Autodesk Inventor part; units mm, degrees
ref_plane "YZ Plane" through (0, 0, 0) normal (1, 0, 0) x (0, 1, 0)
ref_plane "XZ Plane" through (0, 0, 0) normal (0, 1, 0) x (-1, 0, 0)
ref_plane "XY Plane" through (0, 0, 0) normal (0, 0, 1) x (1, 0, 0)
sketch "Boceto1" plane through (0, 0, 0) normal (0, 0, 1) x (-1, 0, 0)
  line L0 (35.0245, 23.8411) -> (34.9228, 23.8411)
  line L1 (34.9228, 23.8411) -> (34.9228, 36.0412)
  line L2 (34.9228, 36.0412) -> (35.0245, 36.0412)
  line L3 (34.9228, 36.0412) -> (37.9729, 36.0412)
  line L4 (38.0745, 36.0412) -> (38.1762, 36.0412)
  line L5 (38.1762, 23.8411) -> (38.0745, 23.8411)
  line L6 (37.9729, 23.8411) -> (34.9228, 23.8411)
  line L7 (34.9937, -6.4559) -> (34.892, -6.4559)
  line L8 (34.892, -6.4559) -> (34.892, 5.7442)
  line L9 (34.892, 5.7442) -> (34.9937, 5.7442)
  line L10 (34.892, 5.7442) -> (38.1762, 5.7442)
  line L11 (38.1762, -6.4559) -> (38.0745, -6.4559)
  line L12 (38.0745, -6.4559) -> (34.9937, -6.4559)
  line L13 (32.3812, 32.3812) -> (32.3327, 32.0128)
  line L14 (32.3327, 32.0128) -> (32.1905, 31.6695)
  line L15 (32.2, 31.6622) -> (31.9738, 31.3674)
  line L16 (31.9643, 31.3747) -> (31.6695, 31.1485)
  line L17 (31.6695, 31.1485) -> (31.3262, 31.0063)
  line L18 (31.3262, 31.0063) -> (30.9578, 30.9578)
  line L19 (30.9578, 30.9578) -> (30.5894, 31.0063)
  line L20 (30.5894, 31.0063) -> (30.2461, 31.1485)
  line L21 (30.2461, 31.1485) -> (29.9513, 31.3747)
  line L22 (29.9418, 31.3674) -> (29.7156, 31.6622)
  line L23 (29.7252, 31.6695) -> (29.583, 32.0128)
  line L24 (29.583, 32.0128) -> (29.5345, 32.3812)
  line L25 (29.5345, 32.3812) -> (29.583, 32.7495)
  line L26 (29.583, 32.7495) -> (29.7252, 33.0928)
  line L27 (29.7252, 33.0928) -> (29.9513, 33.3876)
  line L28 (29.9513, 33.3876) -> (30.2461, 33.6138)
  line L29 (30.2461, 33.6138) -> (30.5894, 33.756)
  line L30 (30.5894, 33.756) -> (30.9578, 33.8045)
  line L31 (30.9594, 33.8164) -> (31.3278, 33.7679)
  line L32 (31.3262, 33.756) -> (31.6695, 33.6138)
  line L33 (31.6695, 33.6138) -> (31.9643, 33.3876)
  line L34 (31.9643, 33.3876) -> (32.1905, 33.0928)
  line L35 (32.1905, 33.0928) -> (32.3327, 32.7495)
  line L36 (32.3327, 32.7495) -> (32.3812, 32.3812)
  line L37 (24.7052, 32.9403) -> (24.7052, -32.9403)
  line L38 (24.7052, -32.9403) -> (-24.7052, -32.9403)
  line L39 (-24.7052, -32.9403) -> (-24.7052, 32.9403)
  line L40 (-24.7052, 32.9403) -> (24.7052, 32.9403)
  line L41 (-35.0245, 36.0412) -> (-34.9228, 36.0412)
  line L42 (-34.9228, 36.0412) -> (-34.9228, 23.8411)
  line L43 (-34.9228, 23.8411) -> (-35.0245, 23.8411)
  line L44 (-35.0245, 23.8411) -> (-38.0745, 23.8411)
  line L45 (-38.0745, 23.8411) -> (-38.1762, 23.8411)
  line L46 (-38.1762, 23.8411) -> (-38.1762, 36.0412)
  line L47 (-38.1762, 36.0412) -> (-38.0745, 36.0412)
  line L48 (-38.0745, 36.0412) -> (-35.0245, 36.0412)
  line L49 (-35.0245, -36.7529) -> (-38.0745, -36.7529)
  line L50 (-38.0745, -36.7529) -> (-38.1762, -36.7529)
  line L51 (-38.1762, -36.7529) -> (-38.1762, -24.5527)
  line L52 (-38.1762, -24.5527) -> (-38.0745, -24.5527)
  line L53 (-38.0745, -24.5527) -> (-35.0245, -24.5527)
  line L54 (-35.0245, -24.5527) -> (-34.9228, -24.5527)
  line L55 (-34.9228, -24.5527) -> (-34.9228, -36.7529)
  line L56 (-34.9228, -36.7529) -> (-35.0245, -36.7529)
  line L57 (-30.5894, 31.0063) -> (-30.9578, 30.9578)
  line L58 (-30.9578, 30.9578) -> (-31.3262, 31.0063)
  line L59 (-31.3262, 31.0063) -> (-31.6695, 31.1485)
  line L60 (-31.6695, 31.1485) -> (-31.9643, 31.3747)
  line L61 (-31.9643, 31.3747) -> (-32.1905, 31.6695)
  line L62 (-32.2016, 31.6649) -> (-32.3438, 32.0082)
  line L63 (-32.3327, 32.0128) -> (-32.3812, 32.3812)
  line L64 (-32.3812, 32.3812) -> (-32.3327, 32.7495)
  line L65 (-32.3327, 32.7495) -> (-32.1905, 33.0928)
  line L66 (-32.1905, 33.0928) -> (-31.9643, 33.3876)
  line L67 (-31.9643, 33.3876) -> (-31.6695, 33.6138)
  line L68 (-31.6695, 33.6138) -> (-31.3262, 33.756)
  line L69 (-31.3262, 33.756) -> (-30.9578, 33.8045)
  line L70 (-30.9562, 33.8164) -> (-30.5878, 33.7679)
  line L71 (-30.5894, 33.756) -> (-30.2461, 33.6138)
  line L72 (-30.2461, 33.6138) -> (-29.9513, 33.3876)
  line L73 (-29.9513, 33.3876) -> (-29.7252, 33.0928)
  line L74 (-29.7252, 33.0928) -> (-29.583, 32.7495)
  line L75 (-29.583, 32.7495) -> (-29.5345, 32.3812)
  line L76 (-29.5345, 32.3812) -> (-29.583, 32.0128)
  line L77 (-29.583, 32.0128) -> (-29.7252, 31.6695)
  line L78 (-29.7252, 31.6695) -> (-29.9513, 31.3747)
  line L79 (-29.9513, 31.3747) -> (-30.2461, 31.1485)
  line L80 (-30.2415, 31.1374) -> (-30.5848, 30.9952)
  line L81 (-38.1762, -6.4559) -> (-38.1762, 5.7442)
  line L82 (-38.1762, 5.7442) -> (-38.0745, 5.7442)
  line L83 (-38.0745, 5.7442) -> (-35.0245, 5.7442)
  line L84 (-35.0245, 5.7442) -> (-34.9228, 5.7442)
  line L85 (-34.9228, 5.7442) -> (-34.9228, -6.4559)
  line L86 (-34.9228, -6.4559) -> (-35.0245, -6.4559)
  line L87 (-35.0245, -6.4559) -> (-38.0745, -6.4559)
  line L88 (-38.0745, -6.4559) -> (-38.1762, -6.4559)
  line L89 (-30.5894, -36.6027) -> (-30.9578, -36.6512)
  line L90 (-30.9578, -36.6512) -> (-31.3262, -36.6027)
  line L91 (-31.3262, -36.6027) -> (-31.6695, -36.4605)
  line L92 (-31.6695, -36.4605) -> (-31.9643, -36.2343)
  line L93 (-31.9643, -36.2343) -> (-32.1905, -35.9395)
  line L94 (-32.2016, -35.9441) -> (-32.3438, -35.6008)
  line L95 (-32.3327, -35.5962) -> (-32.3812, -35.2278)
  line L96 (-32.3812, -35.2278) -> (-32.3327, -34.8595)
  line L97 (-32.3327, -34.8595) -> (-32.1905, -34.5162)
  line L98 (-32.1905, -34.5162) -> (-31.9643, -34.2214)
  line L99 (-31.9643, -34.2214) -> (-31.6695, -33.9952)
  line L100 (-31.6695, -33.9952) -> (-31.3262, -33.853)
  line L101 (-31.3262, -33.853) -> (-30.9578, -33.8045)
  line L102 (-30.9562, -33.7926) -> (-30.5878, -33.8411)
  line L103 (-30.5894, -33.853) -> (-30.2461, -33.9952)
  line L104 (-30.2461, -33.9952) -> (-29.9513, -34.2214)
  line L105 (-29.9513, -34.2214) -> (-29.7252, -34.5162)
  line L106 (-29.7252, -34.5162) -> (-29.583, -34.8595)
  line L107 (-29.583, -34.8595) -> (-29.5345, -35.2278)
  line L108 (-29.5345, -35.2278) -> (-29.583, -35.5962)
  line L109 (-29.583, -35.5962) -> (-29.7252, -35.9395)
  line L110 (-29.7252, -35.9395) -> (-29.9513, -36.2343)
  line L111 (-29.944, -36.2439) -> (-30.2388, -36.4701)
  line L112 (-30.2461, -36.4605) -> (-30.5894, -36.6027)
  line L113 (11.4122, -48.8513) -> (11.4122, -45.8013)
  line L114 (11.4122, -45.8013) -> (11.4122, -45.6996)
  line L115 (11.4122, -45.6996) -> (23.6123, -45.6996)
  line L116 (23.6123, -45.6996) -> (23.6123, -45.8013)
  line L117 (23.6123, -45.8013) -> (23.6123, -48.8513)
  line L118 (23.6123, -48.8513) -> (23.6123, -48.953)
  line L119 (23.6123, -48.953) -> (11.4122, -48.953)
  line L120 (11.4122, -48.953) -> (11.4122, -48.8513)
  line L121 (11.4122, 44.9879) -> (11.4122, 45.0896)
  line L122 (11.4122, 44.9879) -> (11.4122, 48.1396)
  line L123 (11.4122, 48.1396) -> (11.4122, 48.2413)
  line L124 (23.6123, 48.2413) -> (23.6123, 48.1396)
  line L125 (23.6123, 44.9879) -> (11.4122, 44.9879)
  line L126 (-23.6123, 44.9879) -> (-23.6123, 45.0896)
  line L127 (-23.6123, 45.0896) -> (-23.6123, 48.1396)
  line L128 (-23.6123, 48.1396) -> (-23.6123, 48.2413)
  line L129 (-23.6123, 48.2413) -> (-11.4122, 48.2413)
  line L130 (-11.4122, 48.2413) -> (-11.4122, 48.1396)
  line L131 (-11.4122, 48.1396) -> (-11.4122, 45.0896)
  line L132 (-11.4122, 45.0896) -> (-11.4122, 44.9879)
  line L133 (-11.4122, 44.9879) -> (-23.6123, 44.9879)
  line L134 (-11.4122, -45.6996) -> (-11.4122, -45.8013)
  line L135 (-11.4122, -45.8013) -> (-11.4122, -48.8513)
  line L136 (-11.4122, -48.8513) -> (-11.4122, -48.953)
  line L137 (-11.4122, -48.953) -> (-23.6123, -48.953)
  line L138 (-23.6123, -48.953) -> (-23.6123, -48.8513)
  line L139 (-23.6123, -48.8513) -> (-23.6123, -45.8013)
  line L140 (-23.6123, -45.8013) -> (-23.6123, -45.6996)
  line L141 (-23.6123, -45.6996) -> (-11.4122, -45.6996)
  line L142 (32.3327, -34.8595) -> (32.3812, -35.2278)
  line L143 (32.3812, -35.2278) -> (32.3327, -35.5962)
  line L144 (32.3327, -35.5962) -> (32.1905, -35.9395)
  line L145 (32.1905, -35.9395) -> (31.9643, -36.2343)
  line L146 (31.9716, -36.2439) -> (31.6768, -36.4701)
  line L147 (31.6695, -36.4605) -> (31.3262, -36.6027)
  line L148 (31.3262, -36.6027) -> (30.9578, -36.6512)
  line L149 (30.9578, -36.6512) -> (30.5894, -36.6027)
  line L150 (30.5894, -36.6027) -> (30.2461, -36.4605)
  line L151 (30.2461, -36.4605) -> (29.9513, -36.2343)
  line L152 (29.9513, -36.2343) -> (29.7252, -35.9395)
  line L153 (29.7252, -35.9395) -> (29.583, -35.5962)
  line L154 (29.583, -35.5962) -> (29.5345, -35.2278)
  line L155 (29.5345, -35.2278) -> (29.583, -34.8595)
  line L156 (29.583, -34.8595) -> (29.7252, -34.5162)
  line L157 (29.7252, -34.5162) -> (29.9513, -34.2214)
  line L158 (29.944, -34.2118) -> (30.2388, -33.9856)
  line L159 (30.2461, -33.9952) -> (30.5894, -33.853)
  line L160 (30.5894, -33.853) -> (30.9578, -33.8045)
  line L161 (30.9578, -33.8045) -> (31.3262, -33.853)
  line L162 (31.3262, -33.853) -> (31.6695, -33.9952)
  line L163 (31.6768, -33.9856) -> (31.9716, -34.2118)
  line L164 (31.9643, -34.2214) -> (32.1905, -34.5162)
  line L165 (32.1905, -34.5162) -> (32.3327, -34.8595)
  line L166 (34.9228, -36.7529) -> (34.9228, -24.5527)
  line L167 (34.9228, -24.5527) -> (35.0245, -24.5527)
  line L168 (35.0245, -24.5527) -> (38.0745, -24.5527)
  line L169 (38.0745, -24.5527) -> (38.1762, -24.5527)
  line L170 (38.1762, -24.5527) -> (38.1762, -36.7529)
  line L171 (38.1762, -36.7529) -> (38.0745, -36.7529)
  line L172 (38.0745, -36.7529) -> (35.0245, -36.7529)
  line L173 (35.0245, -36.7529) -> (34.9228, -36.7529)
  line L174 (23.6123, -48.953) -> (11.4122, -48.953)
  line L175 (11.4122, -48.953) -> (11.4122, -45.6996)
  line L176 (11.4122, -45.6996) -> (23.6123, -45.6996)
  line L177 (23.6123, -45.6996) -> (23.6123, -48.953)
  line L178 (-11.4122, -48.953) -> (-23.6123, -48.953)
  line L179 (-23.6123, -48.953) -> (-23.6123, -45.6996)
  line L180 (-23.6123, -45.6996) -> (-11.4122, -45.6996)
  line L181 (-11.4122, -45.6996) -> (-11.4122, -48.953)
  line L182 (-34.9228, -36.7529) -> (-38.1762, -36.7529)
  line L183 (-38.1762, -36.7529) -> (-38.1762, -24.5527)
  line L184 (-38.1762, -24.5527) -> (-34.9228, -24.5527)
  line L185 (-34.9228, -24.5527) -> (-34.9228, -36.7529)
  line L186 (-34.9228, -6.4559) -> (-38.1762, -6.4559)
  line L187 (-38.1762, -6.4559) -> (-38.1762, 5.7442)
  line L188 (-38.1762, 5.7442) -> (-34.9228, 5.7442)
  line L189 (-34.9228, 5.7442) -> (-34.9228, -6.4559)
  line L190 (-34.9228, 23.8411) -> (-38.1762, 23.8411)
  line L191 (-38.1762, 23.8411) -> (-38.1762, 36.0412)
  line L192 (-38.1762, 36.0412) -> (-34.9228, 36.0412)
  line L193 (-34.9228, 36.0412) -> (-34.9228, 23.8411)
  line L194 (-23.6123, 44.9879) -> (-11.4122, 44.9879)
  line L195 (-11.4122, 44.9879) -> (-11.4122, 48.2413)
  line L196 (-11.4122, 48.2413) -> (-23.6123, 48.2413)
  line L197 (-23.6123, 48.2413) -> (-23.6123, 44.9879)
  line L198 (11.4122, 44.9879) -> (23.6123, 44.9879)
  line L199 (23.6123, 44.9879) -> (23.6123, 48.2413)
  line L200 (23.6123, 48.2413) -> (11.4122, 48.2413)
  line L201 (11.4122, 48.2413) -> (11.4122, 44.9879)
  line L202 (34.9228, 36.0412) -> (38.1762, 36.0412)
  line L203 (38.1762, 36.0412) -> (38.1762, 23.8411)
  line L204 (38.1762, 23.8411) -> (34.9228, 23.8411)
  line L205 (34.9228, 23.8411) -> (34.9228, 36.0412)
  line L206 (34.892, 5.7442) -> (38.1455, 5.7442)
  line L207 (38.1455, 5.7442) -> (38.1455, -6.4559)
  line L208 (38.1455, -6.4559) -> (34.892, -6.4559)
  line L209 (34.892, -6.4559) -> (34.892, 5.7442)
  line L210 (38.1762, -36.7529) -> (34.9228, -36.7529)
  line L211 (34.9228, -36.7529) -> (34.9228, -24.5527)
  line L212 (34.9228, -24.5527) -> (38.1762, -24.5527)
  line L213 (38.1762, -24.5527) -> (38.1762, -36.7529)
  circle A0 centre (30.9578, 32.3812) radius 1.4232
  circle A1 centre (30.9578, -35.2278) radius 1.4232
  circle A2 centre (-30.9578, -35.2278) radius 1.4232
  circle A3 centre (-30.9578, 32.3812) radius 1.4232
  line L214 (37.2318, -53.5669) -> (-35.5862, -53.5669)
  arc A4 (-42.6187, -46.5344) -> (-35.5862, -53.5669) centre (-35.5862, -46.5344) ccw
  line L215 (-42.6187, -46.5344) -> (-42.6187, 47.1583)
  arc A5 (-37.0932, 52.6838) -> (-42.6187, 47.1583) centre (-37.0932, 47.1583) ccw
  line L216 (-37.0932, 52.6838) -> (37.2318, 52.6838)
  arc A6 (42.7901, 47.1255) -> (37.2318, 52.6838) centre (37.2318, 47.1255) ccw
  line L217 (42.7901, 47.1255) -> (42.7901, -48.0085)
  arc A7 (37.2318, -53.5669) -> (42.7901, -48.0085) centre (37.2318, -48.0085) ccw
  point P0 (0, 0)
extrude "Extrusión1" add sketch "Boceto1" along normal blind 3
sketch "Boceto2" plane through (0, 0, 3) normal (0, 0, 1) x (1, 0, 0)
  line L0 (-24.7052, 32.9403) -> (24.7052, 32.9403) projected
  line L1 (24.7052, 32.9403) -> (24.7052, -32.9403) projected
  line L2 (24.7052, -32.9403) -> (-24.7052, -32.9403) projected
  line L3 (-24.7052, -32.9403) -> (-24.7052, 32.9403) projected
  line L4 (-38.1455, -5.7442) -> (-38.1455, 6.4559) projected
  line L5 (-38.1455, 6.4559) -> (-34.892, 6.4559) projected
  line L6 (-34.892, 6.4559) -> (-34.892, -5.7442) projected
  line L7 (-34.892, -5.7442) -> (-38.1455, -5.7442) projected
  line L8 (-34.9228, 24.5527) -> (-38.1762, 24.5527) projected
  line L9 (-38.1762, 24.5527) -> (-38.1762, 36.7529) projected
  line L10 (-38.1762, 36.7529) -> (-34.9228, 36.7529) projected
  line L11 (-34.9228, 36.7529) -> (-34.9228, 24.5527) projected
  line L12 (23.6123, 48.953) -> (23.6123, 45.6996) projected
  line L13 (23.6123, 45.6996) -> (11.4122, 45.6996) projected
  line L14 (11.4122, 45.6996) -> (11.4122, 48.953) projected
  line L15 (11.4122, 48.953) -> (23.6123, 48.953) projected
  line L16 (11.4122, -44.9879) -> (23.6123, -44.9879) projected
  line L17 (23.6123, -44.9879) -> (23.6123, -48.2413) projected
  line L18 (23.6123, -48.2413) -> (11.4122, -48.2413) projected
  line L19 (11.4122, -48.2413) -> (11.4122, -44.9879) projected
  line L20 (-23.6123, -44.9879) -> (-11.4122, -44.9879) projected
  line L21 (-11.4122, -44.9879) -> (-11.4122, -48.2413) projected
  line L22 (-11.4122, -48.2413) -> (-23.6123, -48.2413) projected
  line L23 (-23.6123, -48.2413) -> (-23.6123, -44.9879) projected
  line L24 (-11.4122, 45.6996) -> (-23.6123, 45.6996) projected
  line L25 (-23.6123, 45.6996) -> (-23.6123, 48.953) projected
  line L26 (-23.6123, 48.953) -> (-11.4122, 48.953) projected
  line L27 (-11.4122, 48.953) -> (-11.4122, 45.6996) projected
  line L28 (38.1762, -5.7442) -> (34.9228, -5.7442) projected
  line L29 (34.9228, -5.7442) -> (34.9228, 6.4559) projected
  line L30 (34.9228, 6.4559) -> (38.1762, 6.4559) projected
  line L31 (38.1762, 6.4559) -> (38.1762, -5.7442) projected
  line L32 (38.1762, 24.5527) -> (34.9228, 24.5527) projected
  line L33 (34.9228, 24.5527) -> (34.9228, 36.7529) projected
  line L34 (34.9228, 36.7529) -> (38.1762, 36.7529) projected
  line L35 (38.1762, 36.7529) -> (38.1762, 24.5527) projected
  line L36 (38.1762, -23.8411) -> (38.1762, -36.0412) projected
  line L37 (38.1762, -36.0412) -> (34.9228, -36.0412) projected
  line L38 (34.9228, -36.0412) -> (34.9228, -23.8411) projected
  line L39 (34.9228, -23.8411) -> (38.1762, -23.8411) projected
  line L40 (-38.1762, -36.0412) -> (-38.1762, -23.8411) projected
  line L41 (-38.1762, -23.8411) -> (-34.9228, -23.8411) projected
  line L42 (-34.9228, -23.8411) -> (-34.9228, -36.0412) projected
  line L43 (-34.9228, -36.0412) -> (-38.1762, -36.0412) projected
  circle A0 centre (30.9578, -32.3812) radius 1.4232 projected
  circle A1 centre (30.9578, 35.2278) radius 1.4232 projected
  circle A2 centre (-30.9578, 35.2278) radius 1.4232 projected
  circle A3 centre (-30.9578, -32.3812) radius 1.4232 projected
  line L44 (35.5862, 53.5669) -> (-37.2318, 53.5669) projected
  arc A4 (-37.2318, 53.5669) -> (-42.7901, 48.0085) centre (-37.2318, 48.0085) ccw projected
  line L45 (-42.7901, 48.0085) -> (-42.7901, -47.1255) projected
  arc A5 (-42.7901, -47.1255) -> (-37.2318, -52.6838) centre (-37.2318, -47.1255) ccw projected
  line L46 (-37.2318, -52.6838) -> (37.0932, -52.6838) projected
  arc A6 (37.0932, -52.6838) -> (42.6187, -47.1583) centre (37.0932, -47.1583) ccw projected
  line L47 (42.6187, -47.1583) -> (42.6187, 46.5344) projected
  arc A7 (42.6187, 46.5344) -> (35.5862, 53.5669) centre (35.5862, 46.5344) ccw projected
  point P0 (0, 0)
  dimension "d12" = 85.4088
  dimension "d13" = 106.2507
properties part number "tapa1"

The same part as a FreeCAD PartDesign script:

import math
import FreeCAD as App
import Part
import Sketcher
from FreeCAD import Vector

doc = App.newDocument("Part")
body = doc.addObject("PartDesign::Body", "Body")

# Sketch on XY plane
sketch1 = body.newObject("Sketcher::SketchObject", "Sketch")
sketch1.AttachmentSupport = (doc.getObject("XY_Plane"), [""])
sketch1.MapMode = "FlatFace"
sketch1.addGeometry([
    Part.LineSegment(Vector(35.6, 53.6, 0), Vector(-37.2, 53.6, 0)),  # 0
    Part.ArcOfCircle(Part.Circle(Vector(-37.2, 48, 0), Vector(0, 0, 1), 5.6), math.radians(90), math.radians(180)),  # 1
    Part.LineSegment(Vector(-42.8, 48, 0), Vector(-42.8, -47.1, 0)),  # 2
    Part.ArcOfCircle(Part.Circle(Vector(-37.2, -47.1, 0), Vector(0, 0, 1), 5.6), math.radians(180), math.radians(270)),  # 3
    Part.LineSegment(Vector(-37.2, -52.7, 0), Vector(37.1, -52.7, 0)),  # 4
    Part.ArcOfCircle(Part.Circle(Vector(37.1, -47.2, 0), Vector(0, 0, 1), 5.5), math.radians(-90), math.radians(0)),  # 5
    Part.LineSegment(Vector(42.6, -47.2, 0), Vector(42.6, 46.5, 0)),  # 6
    Part.ArcOfCircle(Part.Circle(Vector(35.6, 46.5, 0), Vector(0, 0, 1), 7), math.radians(0), math.radians(90)),  # 7
    Part.LineSegment(Vector(34.9, 36.8, 0), Vector(38.2, 36.8, 0)),  # 8
    Part.LineSegment(Vector(38.2, 36.8, 0), Vector(38.2, 24.6, 0)),  # 9
    Part.LineSegment(Vector(38.2, 24.6, 0), Vector(34.9, 24.6, 0)),  # 10
    Part.LineSegment(Vector(34.9, 24.6, 0), Vector(34.9, 36.8, 0)),  # 11
    Part.Circle(Vector(31, 35.2, 0), Vector(0, 0, 1), 1.4),  # 12
    Part.LineSegment(Vector(23.6, 45.7, 0), Vector(11.4, 45.7, 0)),  # 13
    Part.LineSegment(Vector(11.4, 45.7, 0), Vector(11.4, 49, 0)),  # 14
    Part.LineSegment(Vector(11.4, 49, 0), Vector(23.6, 49, 0)),  # 15
    Part.LineSegment(Vector(23.6, 49, 0), Vector(23.6, 45.7, 0)),  # 16
    Part.LineSegment(Vector(-11.4, 49, 0), Vector(-11.4, 45.7, 0)),  # 17
    Part.LineSegment(Vector(-11.4, 45.7, 0), Vector(-23.6, 45.7, 0)),  # 18
    Part.LineSegment(Vector(-23.6, 45.7, 0), Vector(-23.6, 49, 0)),  # 19
    Part.LineSegment(Vector(-23.6, 49, 0), Vector(-11.4, 49, 0)),  # 20
    Part.Circle(Vector(-31, 35.2, 0), Vector(0, 0, 1), 1.4),  # 21
    Part.LineSegment(Vector(-38.2, 36.8, 0), Vector(-34.9, 36.8, 0)),  # 22
    Part.LineSegment(Vector(-34.9, 36.8, 0), Vector(-34.9, 24.6, 0)),  # 23
    Part.LineSegment(Vector(-34.9, 24.6, 0), Vector(-38.2, 24.6, 0)),  # 24
    Part.LineSegment(Vector(-38.2, 24.6, 0), Vector(-38.2, 36.8, 0)),  # 25
    Part.LineSegment(Vector(34.9, 6.5, 0), Vector(38.2, 6.5, 0)),  # 26
    Part.LineSegment(Vector(38.2, 6.5, 0), Vector(38.2, -5.7, 0)),  # 27
    Part.LineSegment(Vector(38.2, -5.7, 0), Vector(34.9, -5.7, 0)),  # 28
    Part.LineSegment(Vector(34.9, -5.7, 0), Vector(34.9, 6.5, 0)),  # 29
    Part.LineSegment(Vector(24.7, -32.9, 0), Vector(-24.7, -32.9, 0)),  # 30
    Part.LineSegment(Vector(-24.7, -32.9, 0), Vector(-24.7, 32.9, 0)),  # 31
    Part.LineSegment(Vector(-24.7, 32.9, 0), Vector(24.7, 32.9, 0)),  # 32
    Part.LineSegment(Vector(24.7, 32.9, 0), Vector(24.7, -32.9, 0)),  # 33
    Part.LineSegment(Vector(38.2, -36, 0), Vector(34.9, -36, 0)),  # 34
    Part.LineSegment(Vector(34.9, -36, 0), Vector(34.9, -23.8, 0)),  # 35
    Part.LineSegment(Vector(34.9, -23.8, 0), Vector(38.2, -23.8, 0)),  # 36
    Part.LineSegment(Vector(38.2, -23.8, 0), Vector(38.2, -36, 0)),  # 37
    Part.Circle(Vector(31, -32.4, 0), Vector(0, 0, 1), 1.4),  # 38
    Part.LineSegment(Vector(11.4, -45, 0), Vector(23.6, -45, 0)),  # 39
    Part.LineSegment(Vector(23.6, -45, 0), Vector(23.6, -48.2, 0)),  # 40
    Part.LineSegment(Vector(23.6, -48.2, 0), Vector(11.4, -48.2, 0)),  # 41
    Part.LineSegment(Vector(11.4, -48.2, 0), Vector(11.4, -45, 0)),  # 42
    Part.LineSegment(Vector(-38.1, 6.5, 0), Vector(-34.9, 6.5, 0)),  # 43
    Part.LineSegment(Vector(-34.9, 6.5, 0), Vector(-34.9, -5.7, 0)),  # 44
    Part.LineSegment(Vector(-34.9, -5.7, 0), Vector(-38.1, -5.7, 0)),  # 45
    Part.LineSegment(Vector(-38.1, -5.7, 0), Vector(-38.1, 6.5, 0)),  # 46
    Part.LineSegment(Vector(-23.6, -45, 0), Vector(-11.4, -45, 0)),  # 47
    Part.LineSegment(Vector(-11.4, -45, 0), Vector(-11.4, -48.2, 0)),  # 48
    Part.LineSegment(Vector(-11.4, -48.2, 0), Vector(-23.6, -48.2, 0)),  # 49
    Part.LineSegment(Vector(-23.6, -48.2, 0), Vector(-23.6, -45, 0)),  # 50
    Part.Circle(Vector(-31, -32.4, 0), Vector(0, 0, 1), 1.4),  # 51
    Part.LineSegment(Vector(-38.2, -23.8, 0), Vector(-34.9, -23.8, 0)),  # 52
    Part.LineSegment(Vector(-34.9, -23.8, 0), Vector(-34.9, -36, 0)),  # 53
    Part.LineSegment(Vector(-34.9, -36, 0), Vector(-38.2, -36, 0)),  # 54
    Part.LineSegment(Vector(-38.2, -36, 0), Vector(-38.2, -23.8, 0)),  # 55
], False)
sketch1.addConstraint([
    Sketcher.Constraint("Tangent", 0, 2, 1, 1),
    Sketcher.Constraint("Tangent", 1, 2, 2, 1),
    Sketcher.Constraint("Tangent", 2, 2, 3, 1),
    Sketcher.Constraint("Tangent", 3, 2, 4, 1),
    Sketcher.Constraint("Tangent", 4, 2, 5, 1),
    Sketcher.Constraint("Tangent", 5, 2, 6, 1),
    Sketcher.Constraint("Tangent", 6, 2, 7, 1),
    Sketcher.Constraint("Tangent", 7, 2, 0, 1),
    Sketcher.Constraint("Coincident", 8, 2, 9, 1),
    Sketcher.Constraint("Coincident", 9, 2, 10, 1),
    Sketcher.Constraint("Coincident", 10, 2, 11, 1),
    Sketcher.Constraint("Coincident", 11, 2, 8, 1),
    Sketcher.Constraint("Coincident", 13, 2, 14, 1),
    Sketcher.Constraint("Coincident", 14, 2, 15, 1),
    Sketcher.Constraint("Coincident", 15, 2, 16, 1),
    Sketcher.Constraint("Coincident", 16, 2, 13, 1),
    Sketcher.Constraint("Coincident", 17, 2, 18, 1),
    Sketcher.Constraint("Coincident", 18, 2, 19, 1),
    Sketcher.Constraint("Coincident", 19, 2, 20, 1),
    Sketcher.Constraint("Coincident", 20, 2, 17, 1),
    Sketcher.Constraint("Coincident", 22, 2, 23, 1),
    Sketcher.Constraint("Coincident", 23, 2, 24, 1),
    Sketcher.Constraint("Coincident", 24, 2, 25, 1),
    Sketcher.Constraint("Coincident", 25, 2, 22, 1),
    Sketcher.Constraint("Coincident", 26, 2, 27, 1),
    Sketcher.Constraint("Coincident", 27, 2, 28, 1),
    Sketcher.Constraint("Coincident", 28, 2, 29, 1),
    Sketcher.Constraint("Coincident", 29, 2, 26, 1),
    Sketcher.Constraint("Coincident", 30, 2, 31, 1),
    Sketcher.Constraint("Coincident", 31, 2, 32, 1),
    Sketcher.Constraint("Coincident", 32, 2, 33, 1),
    Sketcher.Constraint("Coincident", 33, 2, 30, 1),
    Sketcher.Constraint("Coincident", 34, 2, 35, 1),
    Sketcher.Constraint("Coincident", 35, 2, 36, 1),
    Sketcher.Constraint("Coincident", 36, 2, 37, 1),
    Sketcher.Constraint("Coincident", 37, 2, 34, 1),
    Sketcher.Constraint("Coincident", 39, 2, 40, 1),
    Sketcher.Constraint("Coincident", 40, 2, 41, 1),
    Sketcher.Constraint("Coincident", 41, 2, 42, 1),
    Sketcher.Constraint("Coincident", 42, 2, 39, 1),
    Sketcher.Constraint("Coincident", 43, 2, 44, 1),
    Sketcher.Constraint("Coincident", 44, 2, 45, 1),
    Sketcher.Constraint("Coincident", 45, 2, 46, 1),
    Sketcher.Constraint("Coincident", 46, 2, 43, 1),
    Sketcher.Constraint("Coincident", 47, 2, 48, 1),
    Sketcher.Constraint("Coincident", 48, 2, 49, 1),
    Sketcher.Constraint("Coincident", 49, 2, 50, 1),
    Sketcher.Constraint("Coincident", 50, 2, 47, 1),
    Sketcher.Constraint("Coincident", 52, 2, 53, 1),
    Sketcher.Constraint("Coincident", 53, 2, 54, 1),
    Sketcher.Constraint("Coincident", 54, 2, 55, 1),
    Sketcher.Constraint("Coincident", 55, 2, 52, 1),
    Sketcher.Constraint("Horizontal", 0),
    Sketcher.Constraint("Vertical", 2),
    Sketcher.Constraint("Horizontal", 4),
    Sketcher.Constraint("Vertical", 6),
    Sketcher.Constraint("Horizontal", 8),
    Sketcher.Constraint("Vertical", 9),
    Sketcher.Constraint("Horizontal", 10),
    Sketcher.Constraint("Vertical", 11),
    Sketcher.Constraint("Horizontal", 13),
    Sketcher.Constraint("Vertical", 14),
    Sketcher.Constraint("Horizontal", 15),
    Sketcher.Constraint("Vertical", 16),
    Sketcher.Constraint("Vertical", 17),
    Sketcher.Constraint("Horizontal", 18),
    Sketcher.Constraint("Vertical", 19),
    Sketcher.Constraint("Horizontal", 20),
    Sketcher.Constraint("Horizontal", 22),
    Sketcher.Constraint("Vertical", 23),
    Sketcher.Constraint("Horizontal", 24),
    Sketcher.Constraint("Vertical", 25),
    Sketcher.Constraint("Horizontal", 26),
    Sketcher.Constraint("Vertical", 27),
    Sketcher.Constraint("Horizontal", 28),
    Sketcher.Constraint("Vertical", 29),
    Sketcher.Constraint("Horizontal", 30),
    Sketcher.Constraint("Vertical", 31),
    Sketcher.Constraint("Horizontal", 32),
    Sketcher.Constraint("Vertical", 33),
    Sketcher.Constraint("Horizontal", 34),
    Sketcher.Constraint("Vertical", 35),
    Sketcher.Constraint("Horizontal", 36),
    Sketcher.Constraint("Vertical", 37),
    Sketcher.Constraint("Horizontal", 39),
    Sketcher.Constraint("Vertical", 40),
    Sketcher.Constraint("Horizontal", 41),
    Sketcher.Constraint("Vertical", 42),
    Sketcher.Constraint("Horizontal", 43),
    Sketcher.Constraint("Vertical", 44),
    Sketcher.Constraint("Horizontal", 45),
    Sketcher.Constraint("Vertical", 46),
    Sketcher.Constraint("Horizontal", 47),
    Sketcher.Constraint("Vertical", 48),
    Sketcher.Constraint("Horizontal", 49),
    Sketcher.Constraint("Vertical", 50),
    Sketcher.Constraint("Horizontal", 52),
    Sketcher.Constraint("Vertical", 53),
    Sketcher.Constraint("Horizontal", 54),
    Sketcher.Constraint("Vertical", 55),
    Sketcher.Constraint("Equal", 1, 3),
    Sketcher.Constraint("Equal", 12, 21),
    Sketcher.Constraint("Equal", 21, 38),
    Sketcher.Constraint("Equal", 38, 51),
    Sketcher.Constraint("Symmetric", 30, 2, 32, 2, -1, 1),
    Sketcher.Constraint("Symmetric", 12, 3, 21, 3, -2),
    Sketcher.Constraint("Symmetric", 38, 3, 51, 3, -2),
    Sketcher.Constraint("Symmetric", 13, 2, 17, 2, -2),
    Sketcher.Constraint("Symmetric", 15, 2, 19, 2, -2),
    Sketcher.Constraint("Symmetric", 11, 2, 22, 2, -2),
    Sketcher.Constraint("Symmetric", 9, 2, 24, 2, -2),
    Sketcher.Constraint("Symmetric", 42, 2, 47, 2, -2),
    Sketcher.Constraint("Symmetric", 40, 2, 49, 2, -2),
    Sketcher.Constraint("Symmetric", 35, 2, 52, 2, -2),
    Sketcher.Constraint("Symmetric", 37, 2, 54, 2, -2),
    Sketcher.Constraint("Horizontal", 29, 2, 43, 2),
    Sketcher.Constraint("Horizontal", 28, 2, 44, 2),
    Sketcher.Constraint("Vertical", 12, 3, 38, 3),
    Sketcher.Constraint("Vertical", 9, 2, 26, 2),
    Sketcher.Constraint("Vertical", 11, 2, 28, 2),
    Sketcher.Constraint("Vertical", 29, 2, 34, 2),
    Sketcher.Constraint("Vertical", 27, 2, 36, 2),
    Sketcher.Constraint("Vertical", 16, 2, 39, 2),
    Sketcher.Constraint("Vertical", 14, 2, 41, 2),
    Sketcher.Constraint("Equal", 36, 43),
    Sketcher.Constraint("Equal", 49, 9),
    Sketcher.Constraint("Equal", 54, 14),
    Sketcher.Constraint("Equal", 25, 27),
    Sketcher.Constraint("Equal", 29, 35),
    Sketcher.Constraint("Equal", 19, 40),
    Sketcher.Constraint("DistanceX", 13, 2, 13, 1, 12.2),
    Sketcher.Constraint("Diameter", 12, 2.8464),
    Sketcher.Constraint("Radius", 1, 5.5584),
    Sketcher.Constraint("Radius", 5, 5.5255),
    Sketcher.Constraint("Radius", 7, 7.0325),
    Sketcher.Constraint("DistanceY", 11, 2, 14, 2, 12.2),
    Sketcher.Constraint("DistanceY", 40, 2, 34, 2, 12.2),
    Sketcher.Constraint("DistanceX", 0, 2, 0, 1, 72.818),
    Sketcher.Constraint("DistanceY", 2, 2, 2, 1, 95.134),
    Sketcher.Constraint("DistanceX", 2, 2, -1, 1, 42.79),
    Sketcher.Constraint("DistanceX", 7, 3, 8, 2, 2.59),
    Sketcher.Constraint("DistanceY", 34, 2, 38, 3, 3.66),
    Sketcher.Constraint("DistanceX", 8, 1, 8, 2, 3.2534),
    Sketcher.Constraint("DistanceX", 30, 2, 30, 1, 49.4104),
    Sketcher.Constraint("DistanceY", 31, 1, 31, 2, 65.8806),
    Sketcher.Constraint("DistanceY", -1, 1, 0, 2, 53.567),
    Sketcher.Constraint("DistanceY", -1, 1, 8, 2, 36.753),
    Sketcher.Constraint("DistanceY", -1, 1, 26, 2, 6.456),
    Sketcher.Constraint("DistanceY", 35, 2, -1, 1, 23.841),
    Sketcher.Constraint("DistanceX", 43, 2, -1, 1, 34.892),
    Sketcher.Constraint("DistanceY", 5, 3, 12, 3, 82.386),
    Sketcher.Constraint("DistanceX", 1, 3, 21, 3, 6.274),
    Sketcher.Constraint("DistanceX", 13, 2, 7, 3, 24.174),
])
pad1 = body.newObject("PartDesign::Pad", "Pad")
pad1.Profile = sketch1
pad1.Length = 3

doc.recompute()
